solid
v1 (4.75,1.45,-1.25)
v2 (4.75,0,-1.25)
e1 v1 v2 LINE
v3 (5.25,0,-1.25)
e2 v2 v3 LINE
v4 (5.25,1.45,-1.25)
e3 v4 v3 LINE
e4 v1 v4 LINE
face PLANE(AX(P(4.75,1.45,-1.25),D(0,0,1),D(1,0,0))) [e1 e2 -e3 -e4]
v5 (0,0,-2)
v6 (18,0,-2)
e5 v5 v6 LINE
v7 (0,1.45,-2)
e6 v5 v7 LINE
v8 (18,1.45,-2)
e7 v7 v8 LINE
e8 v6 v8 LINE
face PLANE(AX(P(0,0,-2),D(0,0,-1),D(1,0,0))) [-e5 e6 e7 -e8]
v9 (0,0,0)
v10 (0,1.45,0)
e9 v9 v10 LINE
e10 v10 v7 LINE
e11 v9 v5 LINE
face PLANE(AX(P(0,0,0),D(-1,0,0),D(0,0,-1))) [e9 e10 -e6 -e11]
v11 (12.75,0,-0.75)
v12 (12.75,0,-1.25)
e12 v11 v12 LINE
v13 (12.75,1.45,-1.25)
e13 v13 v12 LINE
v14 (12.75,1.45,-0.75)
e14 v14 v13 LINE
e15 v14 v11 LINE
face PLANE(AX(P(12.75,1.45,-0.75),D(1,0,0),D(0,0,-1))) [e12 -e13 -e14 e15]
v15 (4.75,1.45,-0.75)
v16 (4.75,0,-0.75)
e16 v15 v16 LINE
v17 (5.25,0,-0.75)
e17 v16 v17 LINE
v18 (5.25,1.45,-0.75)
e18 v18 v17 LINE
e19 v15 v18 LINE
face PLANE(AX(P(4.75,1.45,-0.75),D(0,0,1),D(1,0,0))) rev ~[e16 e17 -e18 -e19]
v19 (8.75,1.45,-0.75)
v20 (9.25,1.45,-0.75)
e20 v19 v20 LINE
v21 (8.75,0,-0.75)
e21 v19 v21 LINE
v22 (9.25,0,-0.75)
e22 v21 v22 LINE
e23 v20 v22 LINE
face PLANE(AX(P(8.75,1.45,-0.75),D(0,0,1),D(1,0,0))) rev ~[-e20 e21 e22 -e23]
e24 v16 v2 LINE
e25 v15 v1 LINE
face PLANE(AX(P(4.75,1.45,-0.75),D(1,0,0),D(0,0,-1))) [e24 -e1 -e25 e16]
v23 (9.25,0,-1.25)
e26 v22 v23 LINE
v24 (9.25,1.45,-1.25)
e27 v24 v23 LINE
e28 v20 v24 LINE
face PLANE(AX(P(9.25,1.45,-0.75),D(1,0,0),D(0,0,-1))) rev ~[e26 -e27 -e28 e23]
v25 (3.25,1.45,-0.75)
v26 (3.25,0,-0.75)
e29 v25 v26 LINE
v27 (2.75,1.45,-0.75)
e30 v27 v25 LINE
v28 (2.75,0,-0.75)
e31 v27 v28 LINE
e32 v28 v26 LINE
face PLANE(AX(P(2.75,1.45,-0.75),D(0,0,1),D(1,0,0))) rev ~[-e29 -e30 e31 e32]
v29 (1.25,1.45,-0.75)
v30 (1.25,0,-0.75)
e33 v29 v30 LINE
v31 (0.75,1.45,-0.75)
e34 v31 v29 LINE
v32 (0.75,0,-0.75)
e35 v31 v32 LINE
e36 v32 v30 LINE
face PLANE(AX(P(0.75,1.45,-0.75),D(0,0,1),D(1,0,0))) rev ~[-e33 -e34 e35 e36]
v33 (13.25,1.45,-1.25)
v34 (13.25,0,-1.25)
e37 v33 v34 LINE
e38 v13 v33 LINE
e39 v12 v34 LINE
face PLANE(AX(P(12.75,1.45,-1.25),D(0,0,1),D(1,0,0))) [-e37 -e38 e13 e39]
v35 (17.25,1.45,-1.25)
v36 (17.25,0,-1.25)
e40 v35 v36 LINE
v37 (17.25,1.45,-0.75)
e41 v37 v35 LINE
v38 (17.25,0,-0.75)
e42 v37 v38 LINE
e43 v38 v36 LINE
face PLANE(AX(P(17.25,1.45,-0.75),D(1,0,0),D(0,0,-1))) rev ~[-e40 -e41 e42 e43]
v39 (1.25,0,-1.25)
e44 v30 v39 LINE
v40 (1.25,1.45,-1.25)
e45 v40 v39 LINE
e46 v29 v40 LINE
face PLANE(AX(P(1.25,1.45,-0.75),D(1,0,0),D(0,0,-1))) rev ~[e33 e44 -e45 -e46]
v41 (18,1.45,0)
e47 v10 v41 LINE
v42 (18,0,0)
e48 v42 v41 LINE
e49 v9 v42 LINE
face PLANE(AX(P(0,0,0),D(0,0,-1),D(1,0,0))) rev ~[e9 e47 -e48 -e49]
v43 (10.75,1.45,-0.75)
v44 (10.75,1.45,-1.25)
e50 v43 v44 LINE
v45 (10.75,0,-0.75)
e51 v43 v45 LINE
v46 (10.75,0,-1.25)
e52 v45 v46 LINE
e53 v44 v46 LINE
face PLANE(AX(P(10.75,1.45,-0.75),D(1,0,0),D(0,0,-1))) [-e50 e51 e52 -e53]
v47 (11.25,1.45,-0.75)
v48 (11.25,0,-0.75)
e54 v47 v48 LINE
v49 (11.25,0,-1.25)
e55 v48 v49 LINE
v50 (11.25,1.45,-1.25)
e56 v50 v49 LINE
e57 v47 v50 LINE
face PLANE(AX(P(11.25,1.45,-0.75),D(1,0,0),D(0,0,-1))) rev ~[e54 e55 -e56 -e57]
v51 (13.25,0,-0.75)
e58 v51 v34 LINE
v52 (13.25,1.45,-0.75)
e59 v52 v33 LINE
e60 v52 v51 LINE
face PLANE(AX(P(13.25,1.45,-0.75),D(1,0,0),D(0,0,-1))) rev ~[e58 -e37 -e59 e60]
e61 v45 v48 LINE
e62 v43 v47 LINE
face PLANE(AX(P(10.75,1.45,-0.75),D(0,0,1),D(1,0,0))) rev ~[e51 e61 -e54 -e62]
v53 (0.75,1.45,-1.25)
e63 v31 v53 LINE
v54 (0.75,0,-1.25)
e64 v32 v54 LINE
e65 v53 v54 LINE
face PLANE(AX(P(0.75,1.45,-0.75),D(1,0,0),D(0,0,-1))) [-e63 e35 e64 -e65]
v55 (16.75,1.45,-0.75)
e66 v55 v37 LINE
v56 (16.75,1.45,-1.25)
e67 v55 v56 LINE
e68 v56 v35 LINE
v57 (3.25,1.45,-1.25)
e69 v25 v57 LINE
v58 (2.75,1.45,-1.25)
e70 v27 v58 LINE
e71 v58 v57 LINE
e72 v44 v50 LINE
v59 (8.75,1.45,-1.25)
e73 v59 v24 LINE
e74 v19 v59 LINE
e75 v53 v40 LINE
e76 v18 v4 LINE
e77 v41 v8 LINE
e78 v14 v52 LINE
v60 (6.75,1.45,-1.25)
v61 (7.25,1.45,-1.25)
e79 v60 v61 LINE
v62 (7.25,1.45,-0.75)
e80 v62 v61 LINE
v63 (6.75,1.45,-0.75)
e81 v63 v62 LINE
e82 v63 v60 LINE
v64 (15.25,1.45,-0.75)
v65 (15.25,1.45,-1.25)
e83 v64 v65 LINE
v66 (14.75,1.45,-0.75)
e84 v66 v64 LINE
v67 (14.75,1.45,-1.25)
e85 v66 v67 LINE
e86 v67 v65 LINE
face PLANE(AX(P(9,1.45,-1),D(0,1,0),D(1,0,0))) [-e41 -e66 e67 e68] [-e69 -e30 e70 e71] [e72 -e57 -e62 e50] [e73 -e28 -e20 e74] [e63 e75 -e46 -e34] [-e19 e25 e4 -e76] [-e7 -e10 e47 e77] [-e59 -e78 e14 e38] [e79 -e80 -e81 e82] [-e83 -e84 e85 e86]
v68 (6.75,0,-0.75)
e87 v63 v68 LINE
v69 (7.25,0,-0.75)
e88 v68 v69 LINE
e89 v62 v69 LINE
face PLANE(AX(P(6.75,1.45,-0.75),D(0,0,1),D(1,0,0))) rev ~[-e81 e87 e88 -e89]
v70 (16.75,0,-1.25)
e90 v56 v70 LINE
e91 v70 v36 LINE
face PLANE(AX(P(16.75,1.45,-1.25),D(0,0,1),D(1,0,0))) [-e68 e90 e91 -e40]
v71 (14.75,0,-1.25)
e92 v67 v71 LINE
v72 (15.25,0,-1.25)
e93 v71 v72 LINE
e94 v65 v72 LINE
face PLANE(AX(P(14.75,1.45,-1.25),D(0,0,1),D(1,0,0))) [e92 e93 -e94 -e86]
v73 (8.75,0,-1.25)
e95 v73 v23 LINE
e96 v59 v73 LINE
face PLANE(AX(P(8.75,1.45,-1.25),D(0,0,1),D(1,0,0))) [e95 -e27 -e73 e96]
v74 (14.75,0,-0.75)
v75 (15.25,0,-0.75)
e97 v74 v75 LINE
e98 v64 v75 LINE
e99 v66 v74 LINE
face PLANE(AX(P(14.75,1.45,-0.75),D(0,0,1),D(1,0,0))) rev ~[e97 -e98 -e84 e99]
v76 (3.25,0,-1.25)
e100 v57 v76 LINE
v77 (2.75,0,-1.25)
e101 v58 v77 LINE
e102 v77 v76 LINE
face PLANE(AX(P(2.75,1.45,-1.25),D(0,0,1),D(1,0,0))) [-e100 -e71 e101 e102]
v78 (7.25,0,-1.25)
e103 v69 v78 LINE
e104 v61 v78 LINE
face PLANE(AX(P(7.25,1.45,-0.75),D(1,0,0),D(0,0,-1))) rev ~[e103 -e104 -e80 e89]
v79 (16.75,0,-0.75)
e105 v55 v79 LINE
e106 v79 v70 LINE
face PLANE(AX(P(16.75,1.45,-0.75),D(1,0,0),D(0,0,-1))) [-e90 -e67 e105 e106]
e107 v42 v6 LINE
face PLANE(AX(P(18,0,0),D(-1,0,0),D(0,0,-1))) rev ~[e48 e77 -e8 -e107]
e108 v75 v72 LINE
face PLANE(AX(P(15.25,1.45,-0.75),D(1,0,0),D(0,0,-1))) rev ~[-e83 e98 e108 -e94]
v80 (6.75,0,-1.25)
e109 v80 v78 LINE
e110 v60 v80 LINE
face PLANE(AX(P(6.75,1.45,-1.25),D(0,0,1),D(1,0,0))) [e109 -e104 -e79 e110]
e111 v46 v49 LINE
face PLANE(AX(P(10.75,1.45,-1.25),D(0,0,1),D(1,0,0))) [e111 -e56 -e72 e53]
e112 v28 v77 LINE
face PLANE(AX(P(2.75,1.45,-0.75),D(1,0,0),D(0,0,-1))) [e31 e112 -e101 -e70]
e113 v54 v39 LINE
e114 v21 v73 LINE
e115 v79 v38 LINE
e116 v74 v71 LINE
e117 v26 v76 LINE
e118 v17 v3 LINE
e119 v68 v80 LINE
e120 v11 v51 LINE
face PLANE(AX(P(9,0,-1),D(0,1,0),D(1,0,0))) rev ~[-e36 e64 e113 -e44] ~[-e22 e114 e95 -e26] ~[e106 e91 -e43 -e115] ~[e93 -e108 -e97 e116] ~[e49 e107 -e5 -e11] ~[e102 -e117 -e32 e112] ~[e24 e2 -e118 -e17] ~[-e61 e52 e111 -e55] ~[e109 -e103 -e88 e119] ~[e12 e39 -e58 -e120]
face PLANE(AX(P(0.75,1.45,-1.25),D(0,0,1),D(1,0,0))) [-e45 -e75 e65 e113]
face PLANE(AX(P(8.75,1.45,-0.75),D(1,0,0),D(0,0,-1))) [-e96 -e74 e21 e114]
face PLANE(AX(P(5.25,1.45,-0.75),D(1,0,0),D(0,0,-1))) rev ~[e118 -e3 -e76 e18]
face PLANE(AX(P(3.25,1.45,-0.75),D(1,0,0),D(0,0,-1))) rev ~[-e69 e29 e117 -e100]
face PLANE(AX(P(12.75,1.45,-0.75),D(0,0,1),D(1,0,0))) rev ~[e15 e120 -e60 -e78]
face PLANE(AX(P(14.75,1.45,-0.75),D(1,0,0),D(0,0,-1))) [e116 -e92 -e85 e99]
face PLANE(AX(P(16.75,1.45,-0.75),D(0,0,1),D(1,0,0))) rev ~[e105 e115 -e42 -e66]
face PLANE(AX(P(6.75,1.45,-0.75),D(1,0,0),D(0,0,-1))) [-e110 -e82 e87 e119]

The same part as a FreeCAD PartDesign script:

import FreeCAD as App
import Part
import Sketcher
from FreeCAD import Vector

doc = App.newDocument("Part")
body = doc.addObject("PartDesign::Body", "Body")

sketch1 = body.newObject("Sketcher::SketchObject", "Sketch")
sketch1.AttachmentSupport = (doc.getObject("XZ_Plane"), [""])
sketch1.MapMode = "FlatFace"
sketch1.addGeometry(Part.LineSegment(Vector(0, -2, 0), Vector(0, 0, 0)), False)
sketch1.addGeometry(Part.LineSegment(Vector(0, 0, 0), Vector(18, 0, 0)), False)
sketch1.addGeometry(Part.LineSegment(Vector(18, 0, 0), Vector(18, -2, 0)), False)
sketch1.addGeometry(Part.LineSegment(Vector(18, -2, 0), Vector(0, -2, 0)), False)
sketch1.addConstraint(Sketcher.Constraint("Coincident", 0, 2, 1, 1))
sketch1.addConstraint(Sketcher.Constraint("Coincident", 1, 2, 2, 1))
sketch1.addConstraint(Sketcher.Constraint("Coincident", 2, 2, 3, 1))
sketch1.addConstraint(Sketcher.Constraint("Coincident", 3, 2, 0, 1))
sketch1.addConstraint(Sketcher.Constraint("Vertical", 0))
sketch1.addConstraint(Sketcher.Constraint("Horizontal", 1))
sketch1.addConstraint(Sketcher.Constraint("Vertical", 2))
sketch1.addConstraint(Sketcher.Constraint("Horizontal", 3))
sketch1.addConstraint(Sketcher.Constraint("Coincident", 0, 2, -1, 1))
sketch1.addConstraint(Sketcher.Constraint("DistanceX", 1, 1, 1, 2, 18.0))
sketch1.addConstraint(Sketcher.Constraint("DistanceY", 0, 1, 0, 2, 2.0))
pad1 = body.newObject("PartDesign::Pad", "Pad")
pad1.Profile = sketch1
pad1.Length = 1.45
pad1.Reversed = True

sketch2 = body.newObject("Sketcher::SketchObject", "Sketch001")
sketch2.AttachmentSupport = (doc.getObject("XZ_Plane"), [""])
sketch2.MapMode = "FlatFace"
sketch2.AttachmentOffset = App.Placement(Vector(0, 0, -1.45), App.Rotation())
sketch2.addGeometry(Part.LineSegment(Vector(2.75, -1.25, 0), Vector(2.75, -0.75, 0)), False)
sketch2.addGeometry(Part.LineSegment(Vector(2.75, -0.75, 0), Vector(3.25, -0.75, 0)), False)
sketch2.addGeometry(Part.LineSegment(Vector(3.25, -0.75, 0), Vector(3.25, -1.25, 0)), False)
sketch2.addGeometry(Part.LineSegment(Vector(3.25, -1.25, 0), Vector(2.75, -1.25, 0)), False)
sketch2.addGeometry(Part.LineSegment(Vector(0.75, -1.25, 0), Vector(0.75, -0.75, 0)), False)
sketch2.addGeometry(Part.LineSegment(Vector(0.75, -0.75, 0), Vector(1.25, -0.75, 0)), False)
sketch2.addGeometry(Part.LineSegment(Vector(1.25, -0.75, 0), Vector(1.25, -1.25, 0)), False)
sketch2.addGeometry(Part.LineSegment(Vector(1.25, -1.25, 0), Vector(0.75, -1.25, 0)), False)
sketch2.addGeometry(Part.LineSegment(Vector(4.75, -1.25, 0), Vector(4.75, -0.75, 0)), False)
sketch2.addGeometry(Part.LineSegment(Vector(4.75, -0.75, 0), Vector(5.25, -0.75, 0)), False)
sketch2.addGeometry(Part.LineSegment(Vector(5.25, -0.75, 0), Vector(5.25, -1.25, 0)), False)
sketch2.addGeometry(Part.LineSegment(Vector(5.25, -1.25, 0), Vector(4.75, -1.25, 0)), False)
sketch2.addGeometry(Part.LineSegment(Vector(6.75, -1.25, 0), Vector(6.75, -0.75, 0)), False)
sketch2.addGeometry(Part.LineSegment(Vector(6.75, -0.75, 0), Vector(7.25, -0.75, 0)), False)
sketch2.addGeometry(Part.LineSegment(Vector(7.25, -0.75, 0), Vector(7.25, -1.25, 0)), False)
sketch2.addGeometry(Part.LineSegment(Vector(7.25, -1.25, 0), Vector(6.75, -1.25, 0)), False)
sketch2.addGeometry(Part.LineSegment(Vector(8.75, -1.25, 0), Vector(8.75, -0.75, 0)), False)
sketch2.addGeometry(Part.LineSegment(Vector(8.75, -0.75, 0), Vector(9.25, -0.75, 0)), False)
sketch2.addGeometry(Part.LineSegment(Vector(9.25, -0.75, 0), Vector(9.25, -1.25, 0)), False)
sketch2.addGeometry(Part.LineSegment(Vector(9.25, -1.25, 0), Vector(8.75, -1.25, 0)), False)
sketch2.addGeometry(Part.LineSegment(Vector(10.75, -1.25, 0), Vector(10.75, -0.75, 0)), False)
sketch2.addGeometry(Part.LineSegment(Vector(10.75, -0.75, 0), Vector(11.25, -0.75, 0)), False)
sketch2.addGeometry(Part.LineSegment(Vector(11.25, -0.75, 0), Vector(11.25, -1.25, 0)), False)
sketch2.addGeometry(Part.LineSegment(Vector(11.25, -1.25, 0), Vector(10.75, -1.25, 0)), False)
sketch2.addGeometry(Part.LineSegment(Vector(12.75, -1.25, 0), Vector(12.75, -0.75, 0)), False)
sketch2.addGeometry(Part.LineSegment(Vector(12.75, -0.75, 0), Vector(13.25, -0.75, 0)), False)
sketch2.addGeometry(Part.LineSegment(Vector(13.25, -0.75, 0), Vector(13.25, -1.25, 0)), False)
sketch2.addGeometry(Part.LineSegment(Vector(13.25, -1.25, 0), Vector(12.75, -1.25, 0)), False)
sketch2.addGeometry(Part.LineSegment(Vector(14.75, -1.25, 0), Vector(14.75, -0.75, 0)), False)
sketch2.addGeometry(Part.LineSegment(Vector(14.75, -0.75, 0), Vector(15.25, -0.75, 0)), False)
sketch2.addGeometry(Part.LineSegment(Vector(15.25, -0.75, 0), Vector(15.25, -1.25, 0)), False)
sketch2.addGeometry(Part.LineSegment(Vector(15.25, -1.25, 0), Vector(14.75, -1.25, 0)), False)
sketch2.addGeometry(Part.LineSegment(Vector(16.75, -1.25, 0), Vector(16.75, -0.75, 0)), False)
sketch2.addGeometry(Part.LineSegment(Vector(16.75, -0.75, 0), Vector(17.25, -0.75, 0)), False)
sketch2.addGeometry(Part.LineSegment(Vector(17.25, -0.75, 0), Vector(17.25, -1.25, 0)), False)
sketch2.addGeometry(Part.LineSegment(Vector(17.25, -1.25, 0), Vector(16.75, -1.25, 0)), False)
sketch2.addConstraint(Sketcher.Constraint("Coincident", 0, 2, 1, 1))
sketch2.addConstraint(Sketcher.Constraint("Coincident", 1, 2, 2, 1))
sketch2.addConstraint(Sketcher.Constraint("Coincident", 2, 2, 3, 1))
sketch2.addConstraint(Sketcher.Constraint("Coincident", 3, 2, 0, 1))
sketch2.addConstraint(Sketcher.Constraint("Coincident", 4, 2, 5, 1))
sketch2.addConstraint(Sketcher.Constraint("Coincident", 5, 2, 6, 1))
sketch2.addConstraint(Sketcher.Constraint("Coincident", 6, 2, 7, 1))
sketch2.addConstraint(Sketcher.Constraint("Coincident", 7, 2, 4, 1))
sketch2.addConstraint(Sketcher.Constraint("Coincident", 8, 2, 9, 1))
sketch2.addConstraint(Sketcher.Constraint("Coincident", 9, 2, 10, 1))
sketch2.addConstraint(Sketcher.Constraint("Coincident", 10, 2, 11, 1))
sketch2.addConstraint(Sketcher.Constraint("Coincident", 11, 2, 8, 1))
sketch2.addConstraint(Sketcher.Constraint("Coincident", 12, 2, 13, 1))
sketch2.addConstraint(Sketcher.Constraint("Coincident", 13, 2, 14, 1))
sketch2.addConstraint(Sketcher.Constraint("Coincident", 14, 2, 15, 1))
sketch2.addConstraint(Sketcher.Constraint("Coincident", 15, 2, 12, 1))
sketch2.addConstraint(Sketcher.Constraint("Coincident", 16, 2, 17, 1))
sketch2.addConstraint(Sketcher.Constraint("Coincident", 17, 2, 18, 1))
sketch2.addConstraint(Sketcher.Constraint("Coincident", 18, 2, 19, 1))
sketch2.addConstraint(Sketcher.Constraint("Coincident", 19, 2, 16, 1))
sketch2.addConstraint(Sketcher.Constraint("Coincident", 20, 2, 21, 1))
sketch2.addConstraint(Sketcher.Constraint("Coincident", 21, 2, 22, 1))
sketch2.addConstraint(Sketcher.Constraint("Coincident", 22, 2, 23, 1))
sketch2.addConstraint(Sketcher.Constraint("Coincident", 23, 2, 20, 1))
sketch2.addConstraint(Sketcher.Constraint("Coincident", 24, 2, 25, 1))
sketch2.addConstraint(Sketcher.Constraint("Coincident", 25, 2, 26, 1))
sketch2.addConstraint(Sketcher.Constraint("Coincident", 26, 2, 27, 1))
sketch2.addConstraint(Sketcher.Constraint("Coincident", 27, 2, 24, 1))
sketch2.addConstraint(Sketcher.Constraint("Coincident", 28, 2, 29, 1))
sketch2.addConstraint(Sketcher.Constraint("Coincident", 29, 2, 30, 1))
sketch2.addConstraint(Sketcher.Constraint("Coincident", 30, 2, 31, 1))
sketch2.addConstraint(Sketcher.Constraint("Coincident", 31, 2, 28, 1))
sketch2.addConstraint(Sketcher.Constraint("Coincident", 32, 2, 33, 1))
sketch2.addConstraint(Sketcher.Constraint("Coincident", 33, 2, 34, 1))
sketch2.addConstraint(Sketcher.Constraint("Coincident", 34, 2, 35, 1))
sketch2.addConstraint(Sketcher.Constraint("Coincident", 35, 2, 32, 1))
sketch2.addConstraint(Sketcher.Constraint("Vertical", 0))
sketch2.addConstraint(Sketcher.Constraint("Horizontal", 1))
sketch2.addConstraint(Sketcher.Constraint("Vertical", 2))
sketch2.addConstraint(Sketcher.Constraint("Horizontal", 3))
sketch2.addConstraint(Sketcher.Constraint("Vertical", 4))
sketch2.addConstraint(Sketcher.Constraint("Horizontal", 5))
sketch2.addConstraint(Sketcher.Constraint("Vertical", 6))
sketch2.addConstraint(Sketcher.Constraint("Horizontal", 7))
sketch2.addConstraint(Sketcher.Constraint("Vertical", 8))
sketch2.addConstraint(Sketcher.Constraint("Horizontal", 9))
sketch2.addConstraint(Sketcher.Constraint("Vertical", 10))
sketch2.addConstraint(Sketcher.Constraint("Horizontal", 11))
sketch2.addConstraint(Sketcher.Constraint("Vertical", 12))
sketch2.addConstraint(Sketcher.Constraint("Horizontal", 13))
sketch2.addConstraint(Sketcher.Constraint("Vertical", 14))
sketch2.addConstraint(Sketcher.Constraint("Horizontal", 15))
sketch2.addConstraint(Sketcher.Constraint("Vertical", 16))
sketch2.addConstraint(Sketcher.Constraint("Horizontal", 17))
sketch2.addConstraint(Sketcher.Constraint("Vertical", 18))
sketch2.addConstraint(Sketcher.Constraint("Horizontal", 19))
sketch2.addConstraint(Sketcher.Constraint("Vertical", 20))
sketch2.addConstraint(Sketcher.Constraint("Horizontal", 21))
sketch2.addConstraint(Sketcher.Constraint("Vertical", 22))
sketch2.addConstraint(Sketcher.Constraint("Horizontal", 23))
sketch2.addConstraint(Sketcher.Constraint("Vertical", 24))
sketch2.addConstraint(Sketcher.Constraint("Horizontal", 25))
sketch2.addConstraint(Sketcher.Constraint("Vertical", 26))
sketch2.addConstraint(Sketcher.Constraint("Horizontal", 27))
sketch2.addConstraint(Sketcher.Constraint("Vertical", 28))
sketch2.addConstraint(Sketcher.Constraint("Horizontal", 29))
sketch2.addConstraint(Sketcher.Constraint("Vertical", 30))
sketch2.addConstraint(Sketcher.Constraint("Horizontal", 31))
sketch2.addConstraint(Sketcher.Constraint("Vertical", 32))
sketch2.addConstraint(Sketcher.Constraint("Horizontal", 33))
sketch2.addConstraint(Sketcher.Constraint("Vertical", 34))
sketch2.addConstraint(Sketcher.Constraint("Horizontal", 35))
sketch2.addConstraint(Sketcher.Constraint("Horizontal", 1, 2, 4, 2))
sketch2.addConstraint(Sketcher.Constraint("Horizontal", 3, 2, 6, 2))
sketch2.addConstraint(Sketcher.Constraint("Horizontal", 5, 2, 8, 2))
sketch2.addConstraint(Sketcher.Constraint("Horizontal", 7, 2, 10, 2))
sketch2.addConstraint(Sketcher.Constraint("Horizontal", 9, 2, 12, 2))
sketch2.addConstraint(Sketcher.Constraint("Horizontal", 11, 2, 14, 2))
sketch2.addConstraint(Sketcher.Constraint("Horizontal", 13, 2, 16, 2))
sketch2.addConstraint(Sketcher.Constraint("Horizontal", 15, 2, 18, 2))
sketch2.addConstraint(Sketcher.Constraint("Horizontal", 17, 2, 20, 2))
sketch2.addConstraint(Sketcher.Constraint("Horizontal", 19, 2, 22, 2))
sketch2.addConstraint(Sketcher.Constraint("Horizontal", 21, 2, 24, 2))
sketch2.addConstraint(Sketcher.Constraint("Horizontal", 23, 2, 26, 2))
sketch2.addConstraint(Sketcher.Constraint("Horizontal", 25, 2, 28, 2))
sketch2.addConstraint(Sketcher.Constraint("Horizontal", 27, 2, 30, 2))
sketch2.addConstraint(Sketcher.Constraint("Horizontal", 29, 2, 32, 2))
sketch2.addConstraint(Sketcher.Constraint("Horizontal", 31, 2, 34, 2))
sketch2.addConstraint(Sketcher.Constraint("Equal", 3, 5))
sketch2.addConstraint(Sketcher.Constraint("Equal", 7, 9))
sketch2.addConstraint(Sketcher.Constraint("Equal", 11, 13))
sketch2.addConstraint(Sketcher.Constraint("Equal", 15, 17))
sketch2.addConstraint(Sketcher.Constraint("Equal", 19, 21))
sketch2.addConstraint(Sketcher.Constraint("Equal", 23, 25))
sketch2.addConstraint(Sketcher.Constraint("Equal", 27, 29))
sketch2.addConstraint(Sketcher.Constraint("Equal", 31, 33))
sketch2.addConstraint(Sketcher.Constraint("Equal", 35, 0))
sketch2.addConstraint(Sketcher.Constraint("DistanceX", 1, 1, 1, 2, 0.5))
sketch2.addConstraint(Sketcher.Constraint("DistanceX", 4, 2, 0, 2, 2.0))
sketch2.addConstraint(Sketcher.Constraint("DistanceX", 0, 2, 8, 2, 2.0))
sketch2.addConstraint(Sketcher.Constraint("DistanceX", 8, 2, 12, 2, 2.0))
sketch2.addConstraint(Sketcher.Constraint("DistanceX", 12, 2, 16, 2, 2.0))
sketch2.addConstraint(Sketcher.Constraint("DistanceX", 16, 2, 20, 2, 2.0))
sketch2.addConstraint(Sketcher.Constraint("DistanceX", 20, 2, 24, 2, 2.0))
sketch2.addConstraint(Sketcher.Constraint("DistanceX", 24, 2, 28, 2, 2.0))
sketch2.addConstraint(Sketcher.Constraint("DistanceX", 28, 2, 32, 2, 2.0))
sketch2.addConstraint(Sketcher.Constraint("DistanceX", -1, 1, 0, 2, 2.75))
sketch2.addConstraint(Sketcher.Constraint("DistanceY", 0, 2, -1, 1, 0.75))
pocket1 = body.newObject("PartDesign::Pocket", "Pocket")
pocket1.Profile = sketch2
pocket1.Length = 1.45
pocket1.Reversed = True

doc.recompute()
